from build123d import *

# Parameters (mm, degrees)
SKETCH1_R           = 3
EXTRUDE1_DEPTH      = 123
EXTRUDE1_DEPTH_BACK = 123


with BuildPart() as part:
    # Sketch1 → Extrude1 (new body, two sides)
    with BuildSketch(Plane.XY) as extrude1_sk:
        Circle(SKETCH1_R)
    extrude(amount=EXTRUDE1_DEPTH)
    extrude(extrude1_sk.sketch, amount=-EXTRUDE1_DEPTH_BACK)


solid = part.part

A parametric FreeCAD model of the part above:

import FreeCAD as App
import Part
import Sketcher

V = App.Vector
Q = App.Units.Quantity

doc = App.newDocument("Part")
body = doc.addObject("PartDesign::Body", "Body")

sketch1 = body.newObject("Sketcher::SketchObject", "Sketch")
sketch1.AttachmentSupport = (doc.getObject("XY_Plane"), [""])
sketch1.MapMode = "FlatFace"
sketch1.addGeometry(Part.Circle(V(0, 0, 0), V(0, 0, 1), 3), False)
sketch1.addConstraint([
    Sketcher.Constraint("Coincident", 0, 3, -1, 1),
    Sketcher.Constraint("Diameter", 0, Q("6 mm")),
])
pad1 = body.newObject("PartDesign::Pad", "Pad")
pad1.Profile = sketch1
pad1.Type = "TwoLengths"
pad1.Length = 123
pad1.Length2 = 123

doc.recompute()
